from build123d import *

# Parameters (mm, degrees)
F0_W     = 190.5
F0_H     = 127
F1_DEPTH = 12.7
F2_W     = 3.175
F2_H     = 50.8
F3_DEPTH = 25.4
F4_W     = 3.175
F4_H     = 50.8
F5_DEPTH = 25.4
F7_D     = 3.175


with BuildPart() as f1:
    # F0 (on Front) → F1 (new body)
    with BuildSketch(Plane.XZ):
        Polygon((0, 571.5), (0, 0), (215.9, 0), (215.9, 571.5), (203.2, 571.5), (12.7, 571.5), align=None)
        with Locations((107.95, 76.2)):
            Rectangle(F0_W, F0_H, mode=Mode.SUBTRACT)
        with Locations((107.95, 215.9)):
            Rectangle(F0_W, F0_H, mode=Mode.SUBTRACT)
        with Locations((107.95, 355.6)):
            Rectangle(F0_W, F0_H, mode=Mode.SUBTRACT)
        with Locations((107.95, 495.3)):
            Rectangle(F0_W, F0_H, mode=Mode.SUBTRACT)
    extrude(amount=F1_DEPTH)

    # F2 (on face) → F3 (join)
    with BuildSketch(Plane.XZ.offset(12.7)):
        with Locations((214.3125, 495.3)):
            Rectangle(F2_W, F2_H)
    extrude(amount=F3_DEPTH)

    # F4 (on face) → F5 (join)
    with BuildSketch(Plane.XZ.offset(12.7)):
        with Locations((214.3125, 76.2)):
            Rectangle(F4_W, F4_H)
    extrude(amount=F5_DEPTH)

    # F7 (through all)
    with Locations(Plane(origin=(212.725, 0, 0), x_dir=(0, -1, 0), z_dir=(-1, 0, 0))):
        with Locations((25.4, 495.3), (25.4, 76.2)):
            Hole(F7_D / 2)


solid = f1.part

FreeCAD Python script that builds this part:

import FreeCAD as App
import Part
import Sketcher
from FreeCAD import Vector
Q = App.Units.Quantity

doc = App.newDocument("Part")
body = doc.addObject("PartDesign::Body", "Body")

sketch1 = body.newObject("Sketcher::SketchObject", "Sketch")
sketch1.AttachmentSupport = (doc.getObject("XZ_Plane"), [""])
sketch1.MapMode = "FlatFace"
sketch1.addGeometry(Part.LineSegment(Vector(0, 571.5, 0), Vector(0, 0, 0)), False)
sketch1.addGeometry(Part.LineSegment(Vector(0, 0, 0), Vector(215.9, 0, 0)), False)
sketch1.addGeometry(Part.LineSegment(Vector(215.9, 0, 0), Vector(215.9, 571.5, 0)), False)
sketch1.addGeometry(Part.LineSegment(Vector(215.9, 571.5, 0), Vector(0, 571.5, 0)), False)
sketch1.addGeometry(Part.LineSegment(Vector(203.2, 12.7, 0), Vector(12.7, 12.7, 0)), False)
sketch1.addGeometry(Part.LineSegment(Vector(12.7, 12.7, 0), Vector(12.7, 139.7, 0)), False)
sketch1.addGeometry(Part.LineSegment(Vector(12.7, 139.7, 0), Vector(203.2, 139.7, 0)), False)
sketch1.addGeometry(Part.LineSegment(Vector(203.2, 139.7, 0), Vector(203.2, 12.7, 0)), False)
sketch1.addGeometry(Part.LineSegment(Vector(203.2, 152.4, 0), Vector(12.7, 152.4, 0)), False)
sketch1.addGeometry(Part.LineSegment(Vector(12.7, 152.4, 0), Vector(12.7, 279.4, 0)), False)
sketch1.addGeometry(Part.LineSegment(Vector(12.7, 279.4, 0), Vector(203.2, 279.4, 0)), False)
sketch1.addGeometry(Part.LineSegment(Vector(203.2, 279.4, 0), Vector(203.2, 152.4, 0)), False)
sketch1.addGeometry(Part.LineSegment(Vector(203.2, 292.1, 0), Vector(12.7, 292.1, 0)), False)
sketch1.addGeometry(Part.LineSegment(Vector(12.7, 292.1, 0), Vector(12.7, 419.1, 0)), False)
sketch1.addGeometry(Part.LineSegment(Vector(12.7, 419.1, 0), Vector(203.2, 419.1, 0)), False)
sketch1.addGeometry(Part.LineSegment(Vector(203.2, 419.1, 0), Vector(203.2, 292.1, 0)), False)
sketch1.addGeometry(Part.LineSegment(Vector(203.2, 431.8, 0), Vector(12.7, 431.8, 0)), False)
sketch1.addGeometry(Part.LineSegment(Vector(12.7, 431.8, 0), Vector(12.7, 558.8, 0)), False)
sketch1.addGeometry(Part.LineSegment(Vector(12.7, 558.8, 0), Vector(203.2, 558.8, 0)), False)
sketch1.addGeometry(Part.LineSegment(Vector(203.2, 558.8, 0), Vector(203.2, 431.8, 0)), False)
sketch1.addConstraint(Sketcher.Constraint("Coincident", 0, 2, 1, 1))
sketch1.addConstraint(Sketcher.Constraint("Coincident", 1, 2, 2, 1))
sketch1.addConstraint(Sketcher.Constraint("Coincident", 2, 2, 3, 1))
sketch1.addConstraint(Sketcher.Constraint("Coincident", 3, 2, 0, 1))
sketch1.addConstraint(Sketcher.Constraint("Coincident", 4, 2, 5, 1))
sketch1.addConstraint(Sketcher.Constraint("Coincident", 5, 2, 6, 1))
sketch1.addConstraint(Sketcher.Constraint("Coincident", 6, 2, 7, 1))
sketch1.addConstraint(Sketcher.Constraint("Coincident", 7, 2, 4, 1))
sketch1.addConstraint(Sketcher.Constraint("Coincident", 8, 2, 9, 1))
sketch1.addConstraint(Sketcher.Constraint("Coincident", 9, 2, 10, 1))
sketch1.addConstraint(Sketcher.Constraint("Coincident", 10, 2, 11, 1))
sketch1.addConstraint(Sketcher.Constraint("Coincident", 11, 2, 8, 1))
sketch1.addConstraint(Sketcher.Constraint("Coincident", 12, 2, 13, 1))
sketch1.addConstraint(Sketcher.Constraint("Coincident", 13, 2, 14, 1))
sketch1.addConstraint(Sketcher.Constraint("Coincident", 14, 2, 15, 1))
sketch1.addConstraint(Sketcher.Constraint("Coincident", 15, 2, 12, 1))
sketch1.addConstraint(Sketcher.Constraint("Coincident", 16, 2, 17, 1))
sketch1.addConstraint(Sketcher.Constraint("Coincident", 17, 2, 18, 1))
sketch1.addConstraint(Sketcher.Constraint("Coincident", 18, 2, 19, 1))
sketch1.addConstraint(Sketcher.Constraint("Coincident", 19, 2, 16, 1))
sketch1.addConstraint(Sketcher.Constraint("Vertical", 0))
sketch1.addConstraint(Sketcher.Constraint("Horizontal", 1))
sketch1.addConstraint(Sketcher.Constraint("Vertical", 2))
sketch1.addConstraint(Sketcher.Constraint("Horizontal", 3))
sketch1.addConstraint(Sketcher.Constraint("Horizontal", 4))
sketch1.addConstraint(Sketcher.Constraint("Vertical", 5))
sketch1.addConstraint(Sketcher.Constraint("Horizontal", 6))
sketch1.addConstraint(Sketcher.Constraint("Vertical", 7))
sketch1.addConstraint(Sketcher.Constraint("Horizontal", 8))
sketch1.addConstraint(Sketcher.Constraint("Vertical", 9))
sketch1.addConstraint(Sketcher.Constraint("Horizontal", 10))
sketch1.addConstraint(Sketcher.Constraint("Vertical", 11))
sketch1.addConstraint(Sketcher.Constraint("Horizontal", 12))
sketch1.addConstraint(Sketcher.Constraint("Vertical", 13))
sketch1.addConstraint(Sketcher.Constraint("Horizontal", 14))
sketch1.addConstraint(Sketcher.Constraint("Vertical", 15))
sketch1.addConstraint(Sketcher.Constraint("Horizontal", 16))
sketch1.addConstraint(Sketcher.Constraint("Vertical", 17))
sketch1.addConstraint(Sketcher.Constraint("Horizontal", 18))
sketch1.addConstraint(Sketcher.Constraint("Vertical", 19))
sketch1.addConstraint(Sketcher.Constraint("Coincident", 0, 2, -1, 1))
sketch1.addConstraint(Sketcher.Constraint("Vertical", 5, 2, 8, 2))
sketch1.addConstraint(Sketcher.Constraint("Vertical", 7, 2, 10, 2))
sketch1.addConstraint(Sketcher.Constraint("Vertical", 9, 2, 12, 2))
sketch1.addConstraint(Sketcher.Constraint("Vertical", 11, 2, 14, 2))
sketch1.addConstraint(Sketcher.Constraint("Vertical", 13, 2, 16, 2))
sketch1.addConstraint(Sketcher.Constraint("Vertical", 15, 2, 18, 2))
sketch1.addConstraint(Sketcher.Constraint("Equal", 7, 9))
sketch1.addConstraint(Sketcher.Constraint("Equal", 11, 13))
sketch1.addConstraint(Sketcher.Constraint("Equal", 15, 17))
sketch1.addConstraint(Sketcher.Constraint("DistanceY", 5, 1, 5, 2, Q("5 in")))
sketch1.addConstraint(Sketcher.Constraint("DistanceX", 1, 1, 1, 2, Q("8.5 in")))
sketch1.addConstraint(Sketcher.Constraint("DistanceX", 4, 2, 4, 1, Q("7.5 in")))
sketch1.addConstraint(Sketcher.Constraint("DistanceY", 0, 2, 0, 1, Q("22.5 in")))
sketch1.addConstraint(Sketcher.Constraint("DistanceX", -1, 1, 6, 2, Q("8 in")))
sketch1.addConstraint(Sketcher.Constraint("DistanceY", -1, 1, 8, 2, Q("6 in")))
sketch1.addConstraint(Sketcher.Constraint("DistanceY", -1, 1, 16, 2, Q("17 in")))
sketch1.addConstraint(Sketcher.Constraint("DistanceY", 4, 2, 3, 2, Q("22 in")))
sketch1.addConstraint(Sketcher.Constraint("DistanceY", 5, 2, 12, 2, Q("6 in")))
pad1 = body.newObject("PartDesign::Pad", "Pad")
pad1.Profile = sketch1
pad1.Length = Q("0.5 in")

sketch2 = body.newObject("Sketcher::SketchObject", "Sketch001")
sketch2.AttachmentSupport = (doc.getObject("XZ_Plane"), [""])
sketch2.MapMode = "FlatFace"
sketch2.AttachmentOffset = App.Placement(Vector(0, 0, 0.5 * 25.4), App.Rotation())
sketch2.addGeometry(Part.LineSegment(Vector(212.725, 520.7, 0), Vector(212.725, 469.9, 0)), False)
sketch2.addGeometry(Part.LineSegment(Vector(212.725, 469.9, 0), Vector(215.9, 469.9, 0)), False)
sketch2.addGeometry(Part.LineSegment(Vector(215.9, 469.9, 0), Vector(215.9, 520.7, 0)), False)
sketch2.addGeometry(Part.LineSegment(Vector(215.9, 520.7, 0), Vector(212.725, 520.7, 0)), False)
sketch2.addConstraint(Sketcher.Constraint("Coincident", 0, 2, 1, 1))
sketch2.addConstraint(Sketcher.Constraint("Coincident", 1, 2, 2, 1))
sketch2.addConstraint(Sketcher.Constraint("Coincident", 2, 2, 3, 1))
sketch2.addConstraint(Sketcher.Constraint("Coincident", 3, 2, 0, 1))
sketch2.addConstraint(Sketcher.Constraint("Vertical", 0))
sketch2.addConstraint(Sketcher.Constraint("Horizontal", 1))
sketch2.addConstraint(Sketcher.Constraint("Vertical", 2))
sketch2.addConstraint(Sketcher.Constraint("Horizontal", 3))
sketch2.addConstraint(Sketcher.Constraint("DistanceY", 0, 2, 0, 1, Q("2 in")))
sketch2.addConstraint(Sketcher.Constraint("DistanceY", -1, 1, 0, 2, Q("18.5 in")))
sketch2.addConstraint(Sketcher.Constraint("DistanceX", -1, 1, 1, 2, Q("8.5 in")))
sketch2.addConstraint(Sketcher.Constraint("DistanceX", 1, 1, 1, 2, Q("0.125 in")))
pad2 = body.newObject("PartDesign::Pad", "Pad001")
pad2.Profile = sketch2
pad2.Length = Q("1 in")

sketch3 = body.newObject("Sketcher::SketchObject", "Sketch002")
sketch3.AttachmentSupport = (doc.getObject("XZ_Plane"), [""])
sketch3.MapMode = "FlatFace"
sketch3.AttachmentOffset = App.Placement(Vector(0, 0, 0.5 * 25.4), App.Rotation())
sketch3.addGeometry(Part.LineSegment(Vector(212.725, 101.6, 0), Vector(212.725, 50.8, 0)), False)
sketch3.addGeometry(Part.LineSegment(Vector(212.725, 50.8, 0), Vector(215.9, 50.8, 0)), False)
sketch3.addGeometry(Part.LineSegment(Vector(215.9, 50.8, 0), Vector(215.9, 101.6, 0)), False)
sketch3.addGeometry(Part.LineSegment(Vector(215.9, 101.6, 0), Vector(212.725, 101.6, 0)), False)
sketch3.addConstraint(Sketcher.Constraint("Coincident", 0, 2, 1, 1))
sketch3.addConstraint(Sketcher.Constraint("Coincident", 1, 2, 2, 1))
sketch3.addConstraint(Sketcher.Constraint("Coincident", 2, 2, 3, 1))
sketch3.addConstraint(Sketcher.Constraint("Coincident", 3, 2, 0, 1))
sketch3.addConstraint(Sketcher.Constraint("Vertical", 0))
sketch3.addConstraint(Sketcher.Constraint("Horizontal", 1))
sketch3.addConstraint(Sketcher.Constraint("Vertical", 2))
sketch3.addConstraint(Sketcher.Constraint("Horizontal", 3))
sketch3.addConstraint(Sketcher.Constraint("DistanceY", 0, 2, 0, 1, Q("2 in")))
sketch3.addConstraint(Sketcher.Constraint("DistanceY", -1, 1, 0, 2, Q("2 in")))
sketch3.addConstraint(Sketcher.Constraint("DistanceX", -1, 1, 1, 2, Q("8.5 in")))
sketch3.addConstraint(Sketcher.Constraint("DistanceX", 1, 1, 1, 2, Q("0.125 in")))
pad3 = body.newObject("PartDesign::Pad", "Pad002")
pad3.Profile = sketch3
pad3.Length = Q("1 in")

sketch4 = body.newObject("Sketcher::SketchObject", "Sketch003")
sketch4.AttachmentSupport = (doc.getObject("YZ_Plane"), [""])
sketch4.MapMode = "FlatFace"
sketch4.AttachmentOffset = App.Placement(Vector(0, 0, 8.375 * 25.4), App.Rotation())
sketch4.addGeometry(Part.Circle(Vector(-25.4, 495.3, 0), Vector(0, 0, 1), 1.5875), False)
sketch4.addGeometry(Part.Circle(Vector(-25.4, 76.2, 0), Vector(0, 0, 1), 1.5875), False)
sketch4.addConstraint(Sketcher.Constraint("Equal", 0, 1))
sketch4.addConstraint(Sketcher.Constraint("Vertical", 0, 3, 1, 3))
sketch4.addConstraint(Sketcher.Constraint("Diameter", 0, Q("0.125 in")))
sketch4.addConstraint(Sketcher.Constraint("DistanceX", 0, 3, -1, 1, Q("1 in")))
sketch4.addConstraint(Sketcher.Constraint("DistanceY", -1, 1, 1, 3, Q("3 in")))
sketch4.addConstraint(Sketcher.Constraint("DistanceY", -1, 1, 0, 3, Q("19.5 in")))
doc.recompute()
hole = body.newObject("PartDesign::Hole", "Hole")
hole.Profile = sketch4
hole.ThreadType = "None"
hole.Diameter = Q("0.125 in")
hole.DepthType = "ThroughAll"
hole.Reversed = True

doc.recompute()
